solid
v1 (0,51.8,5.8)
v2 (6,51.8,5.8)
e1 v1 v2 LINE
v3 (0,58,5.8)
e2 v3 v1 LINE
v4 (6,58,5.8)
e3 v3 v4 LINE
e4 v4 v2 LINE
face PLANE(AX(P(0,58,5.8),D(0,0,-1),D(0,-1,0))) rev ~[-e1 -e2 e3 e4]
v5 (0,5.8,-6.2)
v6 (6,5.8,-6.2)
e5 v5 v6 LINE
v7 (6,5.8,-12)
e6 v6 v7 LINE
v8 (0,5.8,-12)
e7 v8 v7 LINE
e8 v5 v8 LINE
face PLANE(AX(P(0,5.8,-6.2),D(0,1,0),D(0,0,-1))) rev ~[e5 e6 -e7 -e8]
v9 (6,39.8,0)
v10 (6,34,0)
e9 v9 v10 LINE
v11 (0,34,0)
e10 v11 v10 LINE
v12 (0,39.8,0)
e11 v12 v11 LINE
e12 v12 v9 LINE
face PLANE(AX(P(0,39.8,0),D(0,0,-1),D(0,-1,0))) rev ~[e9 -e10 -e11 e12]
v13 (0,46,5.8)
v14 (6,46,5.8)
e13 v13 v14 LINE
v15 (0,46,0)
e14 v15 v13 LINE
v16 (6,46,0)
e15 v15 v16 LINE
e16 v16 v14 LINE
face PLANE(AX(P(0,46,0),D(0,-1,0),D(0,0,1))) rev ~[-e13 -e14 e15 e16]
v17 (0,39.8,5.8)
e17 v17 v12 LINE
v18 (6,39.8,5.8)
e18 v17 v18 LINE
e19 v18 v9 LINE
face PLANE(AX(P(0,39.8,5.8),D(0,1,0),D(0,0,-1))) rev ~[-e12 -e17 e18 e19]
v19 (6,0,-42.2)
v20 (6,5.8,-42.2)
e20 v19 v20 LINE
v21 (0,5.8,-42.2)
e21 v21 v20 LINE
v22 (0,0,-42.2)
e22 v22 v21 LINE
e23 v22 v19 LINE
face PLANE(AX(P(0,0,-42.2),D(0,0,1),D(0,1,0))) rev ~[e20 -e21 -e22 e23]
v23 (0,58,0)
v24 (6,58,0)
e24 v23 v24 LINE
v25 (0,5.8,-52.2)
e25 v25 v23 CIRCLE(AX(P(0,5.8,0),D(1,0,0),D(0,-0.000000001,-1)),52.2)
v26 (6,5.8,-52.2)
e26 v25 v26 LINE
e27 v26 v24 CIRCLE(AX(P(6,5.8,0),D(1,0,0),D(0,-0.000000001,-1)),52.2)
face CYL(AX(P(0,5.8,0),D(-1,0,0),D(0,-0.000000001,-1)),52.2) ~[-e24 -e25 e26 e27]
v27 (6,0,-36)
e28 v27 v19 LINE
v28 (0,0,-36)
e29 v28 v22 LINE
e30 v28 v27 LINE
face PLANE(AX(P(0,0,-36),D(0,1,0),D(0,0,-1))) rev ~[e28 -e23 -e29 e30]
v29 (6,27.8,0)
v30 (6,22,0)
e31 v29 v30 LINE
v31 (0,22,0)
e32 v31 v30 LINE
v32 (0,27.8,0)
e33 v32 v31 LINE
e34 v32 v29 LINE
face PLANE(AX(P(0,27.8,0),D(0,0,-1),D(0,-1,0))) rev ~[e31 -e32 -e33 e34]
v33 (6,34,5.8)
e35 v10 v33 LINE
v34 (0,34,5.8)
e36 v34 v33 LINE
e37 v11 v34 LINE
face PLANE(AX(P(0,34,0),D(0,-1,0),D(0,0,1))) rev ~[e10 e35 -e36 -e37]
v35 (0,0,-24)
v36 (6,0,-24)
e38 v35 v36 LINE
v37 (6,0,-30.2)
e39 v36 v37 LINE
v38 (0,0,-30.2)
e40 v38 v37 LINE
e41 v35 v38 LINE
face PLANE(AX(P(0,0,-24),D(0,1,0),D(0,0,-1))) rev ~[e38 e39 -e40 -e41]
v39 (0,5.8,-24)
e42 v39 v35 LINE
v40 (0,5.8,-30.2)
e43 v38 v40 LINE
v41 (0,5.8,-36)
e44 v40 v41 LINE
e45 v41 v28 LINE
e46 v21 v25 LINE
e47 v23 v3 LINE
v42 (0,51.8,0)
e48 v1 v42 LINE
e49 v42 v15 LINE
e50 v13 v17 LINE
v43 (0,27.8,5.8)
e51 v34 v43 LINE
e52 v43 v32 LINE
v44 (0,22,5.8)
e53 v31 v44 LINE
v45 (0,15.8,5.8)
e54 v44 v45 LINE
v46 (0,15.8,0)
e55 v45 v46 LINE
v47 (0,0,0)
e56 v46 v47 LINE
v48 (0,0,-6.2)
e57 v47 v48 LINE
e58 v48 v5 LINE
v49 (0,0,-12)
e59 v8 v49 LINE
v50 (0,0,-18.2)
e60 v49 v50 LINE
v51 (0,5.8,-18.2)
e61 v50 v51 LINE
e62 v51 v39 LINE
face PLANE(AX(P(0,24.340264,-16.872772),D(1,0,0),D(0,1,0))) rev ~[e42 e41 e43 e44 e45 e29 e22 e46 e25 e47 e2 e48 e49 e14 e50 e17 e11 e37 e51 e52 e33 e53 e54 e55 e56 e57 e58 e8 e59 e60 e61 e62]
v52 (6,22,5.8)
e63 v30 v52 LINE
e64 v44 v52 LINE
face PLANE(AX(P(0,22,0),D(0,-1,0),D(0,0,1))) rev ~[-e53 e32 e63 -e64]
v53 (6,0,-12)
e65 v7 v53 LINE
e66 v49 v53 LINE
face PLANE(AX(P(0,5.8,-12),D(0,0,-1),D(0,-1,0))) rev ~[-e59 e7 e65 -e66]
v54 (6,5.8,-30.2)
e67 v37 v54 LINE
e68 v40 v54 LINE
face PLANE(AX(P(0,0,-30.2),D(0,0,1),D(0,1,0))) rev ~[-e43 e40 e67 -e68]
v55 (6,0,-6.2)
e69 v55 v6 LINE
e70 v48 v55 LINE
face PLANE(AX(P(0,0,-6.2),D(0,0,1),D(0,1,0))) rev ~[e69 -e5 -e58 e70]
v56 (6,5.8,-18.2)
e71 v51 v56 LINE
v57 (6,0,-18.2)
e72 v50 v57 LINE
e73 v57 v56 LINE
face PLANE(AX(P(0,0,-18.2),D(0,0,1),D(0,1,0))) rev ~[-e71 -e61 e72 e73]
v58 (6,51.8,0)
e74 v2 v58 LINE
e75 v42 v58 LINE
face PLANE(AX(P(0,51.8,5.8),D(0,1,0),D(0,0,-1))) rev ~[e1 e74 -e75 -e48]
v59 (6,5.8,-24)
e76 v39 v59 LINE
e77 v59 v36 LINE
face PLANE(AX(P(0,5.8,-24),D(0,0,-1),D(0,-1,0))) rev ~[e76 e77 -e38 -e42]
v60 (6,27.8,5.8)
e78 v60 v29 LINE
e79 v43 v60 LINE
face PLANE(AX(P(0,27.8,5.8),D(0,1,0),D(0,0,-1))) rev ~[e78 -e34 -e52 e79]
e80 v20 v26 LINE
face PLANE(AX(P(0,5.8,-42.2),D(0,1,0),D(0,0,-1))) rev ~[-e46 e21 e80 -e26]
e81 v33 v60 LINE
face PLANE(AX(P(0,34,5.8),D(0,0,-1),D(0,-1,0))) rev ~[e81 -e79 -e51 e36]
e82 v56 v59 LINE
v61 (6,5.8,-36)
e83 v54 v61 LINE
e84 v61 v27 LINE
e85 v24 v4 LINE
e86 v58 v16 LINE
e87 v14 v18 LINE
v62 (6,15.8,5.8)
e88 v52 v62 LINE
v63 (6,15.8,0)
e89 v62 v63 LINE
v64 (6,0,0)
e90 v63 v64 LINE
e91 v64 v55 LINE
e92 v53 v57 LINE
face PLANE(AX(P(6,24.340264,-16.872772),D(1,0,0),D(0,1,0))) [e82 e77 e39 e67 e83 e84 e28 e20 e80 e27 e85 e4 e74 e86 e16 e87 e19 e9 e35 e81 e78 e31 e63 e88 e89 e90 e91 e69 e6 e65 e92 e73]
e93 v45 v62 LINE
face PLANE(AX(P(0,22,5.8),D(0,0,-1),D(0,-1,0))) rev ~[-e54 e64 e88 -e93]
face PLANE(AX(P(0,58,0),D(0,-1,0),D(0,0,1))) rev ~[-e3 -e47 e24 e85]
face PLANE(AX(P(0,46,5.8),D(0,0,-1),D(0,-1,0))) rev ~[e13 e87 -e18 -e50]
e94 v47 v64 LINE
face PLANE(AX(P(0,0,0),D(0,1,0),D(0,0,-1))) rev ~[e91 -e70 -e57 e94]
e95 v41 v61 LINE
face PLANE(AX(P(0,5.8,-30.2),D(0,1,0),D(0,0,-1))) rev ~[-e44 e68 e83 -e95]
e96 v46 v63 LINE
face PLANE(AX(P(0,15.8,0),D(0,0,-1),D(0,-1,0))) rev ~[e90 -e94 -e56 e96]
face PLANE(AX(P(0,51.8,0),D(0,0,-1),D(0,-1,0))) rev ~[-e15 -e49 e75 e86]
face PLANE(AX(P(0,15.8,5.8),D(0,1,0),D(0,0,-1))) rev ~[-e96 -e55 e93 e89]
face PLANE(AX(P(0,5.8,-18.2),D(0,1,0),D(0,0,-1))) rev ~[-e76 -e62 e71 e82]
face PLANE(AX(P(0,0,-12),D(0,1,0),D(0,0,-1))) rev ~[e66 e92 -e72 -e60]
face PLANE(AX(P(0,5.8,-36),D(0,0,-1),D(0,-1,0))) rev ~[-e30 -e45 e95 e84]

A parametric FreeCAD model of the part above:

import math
import FreeCAD as App
import Part
import Sketcher

doc = App.newDocument("Part")
body = doc.addObject("PartDesign::Body", "Body")

# Sketch on YZ plane
sketch1 = doc.addObject("Sketcher::SketchObject", "Sketch")
body.addObject(sketch1)
sketch1.AttachmentSupport = (doc.YZ_Plane, [""])
sketch1.MapMode = "FlatFace"
sketch1.addGeometry(Part.LineSegment(App.Vector(6, -42, 0), App.Vector(6, -52, 0)), False)
sketch1.addGeometry(Part.ArcOfCircle(Part.Circle(App.Vector(6, 0, 0), App.Vector(0, 0, 1), 52), math.radians(-90), math.radians(0)), False)
sketch1.addGeometry(Part.LineSegment(App.Vector(58, 0, 0), App.Vector(58, 6, 0)), False)
sketch1.addGeometry(Part.LineSegment(App.Vector(58, 6, 0), App.Vector(52, 6, 0)), False)
sketch1.addGeometry(Part.LineSegment(App.Vector(52, 6, 0), App.Vector(52, 0, 0)), False)
sketch1.addGeometry(Part.LineSegment(App.Vector(52, 0, 0), App.Vector(46, 0, 0)), False)
sketch1.addGeometry(Part.LineSegment(App.Vector(46, 0, 0), App.Vector(46, 6, 0)), False)
sketch1.addGeometry(Part.LineSegment(App.Vector(46, 6, 0), App.Vector(40, 6, 0)), False)
sketch1.addGeometry(Part.LineSegment(App.Vector(40, 6, 0), App.Vector(40, 0, 0)), False)
sketch1.addGeometry(Part.LineSegment(App.Vector(40, 0, 0), App.Vector(34, 0, 0)), False)
sketch1.addGeometry(Part.LineSegment(App.Vector(34, 0, 0), App.Vector(34, 6, 0)), False)
sketch1.addGeometry(Part.LineSegment(App.Vector(34, 6, 0), App.Vector(28, 6, 0)), False)
sketch1.addGeometry(Part.LineSegment(App.Vector(28, 6, 0), App.Vector(28, 0, 0)), False)
sketch1.addGeometry(Part.LineSegment(App.Vector(28, 0, 0), App.Vector(22, 0, 0)), False)
sketch1.addGeometry(Part.LineSegment(App.Vector(22, 0, 0), App.Vector(22, 6, 0)), False)
sketch1.addGeometry(Part.LineSegment(App.Vector(22, 6, 0), App.Vector(16, 6, 0)), False)
sketch1.addGeometry(Part.LineSegment(App.Vector(16, 6, 0), App.Vector(16, 0, 0)), False)
sketch1.addGeometry(Part.LineSegment(App.Vector(16, 0, 0), App.Vector(0, 0, 0)), False)
sketch1.addGeometry(Part.LineSegment(App.Vector(0, 0, 0), App.Vector(0, -6, 0)), False)
sketch1.addGeometry(Part.LineSegment(App.Vector(0, -6, 0), App.Vector(6, -6, 0)), False)
sketch1.addGeometry(Part.LineSegment(App.Vector(6, -6, 0), App.Vector(6, -12, 0)), False)
sketch1.addGeometry(Part.LineSegment(App.Vector(6, -12, 0), App.Vector(0, -12, 0)), False)
sketch1.addGeometry(Part.LineSegment(App.Vector(0, -12, 0), App.Vector(0, -18, 0)), False)
sketch1.addGeometry(Part.LineSegment(App.Vector(0, -18, 0), App.Vector(6, -18, 0)), False)
sketch1.addGeometry(Part.LineSegment(App.Vector(6, -18, 0), App.Vector(6, -24, 0)), False)
sketch1.addGeometry(Part.LineSegment(App.Vector(6, -24, 0), App.Vector(0, -24, 0)), False)
sketch1.addGeometry(Part.LineSegment(App.Vector(0, -24, 0), App.Vector(0, -30, 0)), False)
sketch1.addGeometry(Part.LineSegment(App.Vector(0, -30, 0), App.Vector(6, -30, 0)), False)
sketch1.addGeometry(Part.LineSegment(App.Vector(6, -30, 0), App.Vector(6, -36, 0)), False)
sketch1.addGeometry(Part.LineSegment(App.Vector(6, -36, 0), App.Vector(0, -36, 0)), False)
sketch1.addGeometry(Part.LineSegment(App.Vector(0, -36, 0), App.Vector(0, -42, 0)), False)
sketch1.addGeometry(Part.LineSegment(App.Vector(0, -42, 0), App.Vector(6, -42, 0)), False)
sketch1.addConstraint(Sketcher.Constraint("Coincident", 0, 2, 1, 1))
sketch1.addConstraint(Sketcher.Constraint("Tangent", 1, 2, 2, 1))
sketch1.addConstraint(Sketcher.Constraint("Coincident", 2, 2, 3, 1))
sketch1.addConstraint(Sketcher.Constraint("Coincident", 3, 2, 4, 1))
sketch1.addConstraint(Sketcher.Constraint("Coincident", 4, 2, 5, 1))
sketch1.addConstraint(Sketcher.Constraint("Coincident", 5, 2, 6, 1))
sketch1.addConstraint(Sketcher.Constraint("Coincident", 6, 2, 7, 1))
sketch1.addConstraint(Sketcher.Constraint("Coincident", 7, 2, 8, 1))
sketch1.addConstraint(Sketcher.Constraint("Coincident", 8, 2, 9, 1))
sketch1.addConstraint(Sketcher.Constraint("Coincident", 9, 2, 10, 1))
sketch1.addConstraint(Sketcher.Constraint("Coincident", 10, 2, 11, 1))
sketch1.addConstraint(Sketcher.Constraint("Coincident", 11, 2, 12, 1))
sketch1.addConstraint(Sketcher.Constraint("Coincident", 12, 2, 13, 1))
sketch1.addConstraint(Sketcher.Constraint("Coincident", 13, 2, 14, 1))
sketch1.addConstraint(Sketcher.Constraint("Coincident", 14, 2, 15, 1))
sketch1.addConstraint(Sketcher.Constraint("Coincident", 15, 2, 16, 1))
sketch1.addConstraint(Sketcher.Constraint("Coincident", 16, 2, 17, 1))
sketch1.addConstraint(Sketcher.Constraint("Coincident", 17, 2, 18, 1))
sketch1.addConstraint(Sketcher.Constraint("Coincident", 18, 2, 19, 1))
sketch1.addConstraint(Sketcher.Constraint("Coincident", 19, 2, 20, 1))
sketch1.addConstraint(Sketcher.Constraint("Coincident", 20, 2, 21, 1))
sketch1.addConstraint(Sketcher.Constraint("Coincident", 21, 2, 22, 1))
sketch1.addConstraint(Sketcher.Constraint("Coincident", 22, 2, 23, 1))
sketch1.addConstraint(Sketcher.Constraint("Coincident", 23, 2, 24, 1))
sketch1.addConstraint(Sketcher.Constraint("Coincident", 24, 2, 25, 1))
sketch1.addConstraint(Sketcher.Constraint("Coincident", 25, 2, 26, 1))
sketch1.addConstraint(Sketcher.Constraint("Coincident", 26, 2, 27, 1))
sketch1.addConstraint(Sketcher.Constraint("Coincident", 27, 2, 28, 1))
sketch1.addConstraint(Sketcher.Constraint("Coincident", 28, 2, 29, 1))
sketch1.addConstraint(Sketcher.Constraint("Coincident", 29, 2, 30, 1))
sketch1.addConstraint(Sketcher.Constraint("Coincident", 30, 2, 31, 1))
sketch1.addConstraint(Sketcher.Constraint("Coincident", 31, 2, 0, 1))
sketch1.addConstraint(Sketcher.Constraint("Vertical", 0))
sketch1.addConstraint(Sketcher.Constraint("Vertical", 2))
sketch1.addConstraint(Sketcher.Constraint("Horizontal", 3))
sketch1.addConstraint(Sketcher.Constraint("Vertical", 4))
sketch1.addConstraint(Sketcher.Constraint("Horizontal", 5))
sketch1.addConstraint(Sketcher.Constraint("Vertical", 6))
sketch1.addConstraint(Sketcher.Constraint("Horizontal", 7))
sketch1.addConstraint(Sketcher.Constraint("Vertical", 8))
sketch1.addConstraint(Sketcher.Constraint("Horizontal", 9))
sketch1.addConstraint(Sketcher.Constraint("Vertical", 10))
sketch1.addConstraint(Sketcher.Constraint("Horizontal", 11))
sketch1.addConstraint(Sketcher.Constraint("Vertical", 12))
sketch1.addConstraint(Sketcher.Constraint("Horizontal", 13))
sketch1.addConstraint(Sketcher.Constraint("Vertical", 14))
sketch1.addConstraint(Sketcher.Constraint("Horizontal", 15))
sketch1.addConstraint(Sketcher.Constraint("Vertical", 16))
sketch1.addConstraint(Sketcher.Constraint("Horizontal", 17))
sketch1.addConstraint(Sketcher.Constraint("Vertical", 18))
sketch1.addConstraint(Sketcher.Constraint("Horizontal", 19))
sketch1.addConstraint(Sketcher.Constraint("Vertical", 20))
sketch1.addConstraint(Sketcher.Constraint("Horizontal", 21))
sketch1.addConstraint(Sketcher.Constraint("Vertical", 22))
sketch1.addConstraint(Sketcher.Constraint("Horizontal", 23))
sketch1.addConstraint(Sketcher.Constraint("Vertical", 24))
sketch1.addConstraint(Sketcher.Constraint("Horizontal", 25))
sketch1.addConstraint(Sketcher.Constraint("Vertical", 26))
sketch1.addConstraint(Sketcher.Constraint("Horizontal", 27))
sketch1.addConstraint(Sketcher.Constraint("Vertical", 28))
sketch1.addConstraint(Sketcher.Constraint("Horizontal", 29))
sketch1.addConstraint(Sketcher.Constraint("Vertical", 30))
sketch1.addConstraint(Sketcher.Constraint("Horizontal", 31))
sketch1.addConstraint(Sketcher.Constraint("Coincident", 17, 2, -1, 1))
sketch1.addConstraint(Sketcher.Constraint("PointOnObject", 1, 3, -1))
sketch1.addConstraint(Sketcher.Constraint("PointOnObject", 4, 2, -1))
sketch1.addConstraint(Sketcher.Constraint("PointOnObject", 8, 2, -1))
sketch1.addConstraint(Sketcher.Constraint("PointOnObject", 12, 2, -1))
sketch1.addConstraint(Sketcher.Constraint("PointOnObject", 21, 2, -2))
sketch1.addConstraint(Sketcher.Constraint("PointOnObject", 25, 2, -2))
sketch1.addConstraint(Sketcher.Constraint("PointOnObject", 29, 2, -2))
sketch1.addConstraint(Sketcher.Constraint("Horizontal", 3, 2, 6, 2))
sketch1.addConstraint(Sketcher.Constraint("Horizontal", 7, 2, 10, 2))
sketch1.addConstraint(Sketcher.Constraint("Horizontal", 11, 2, 14, 2))
sketch1.addConstraint(Sketcher.Constraint("Vertical", 1, 3, 0, 2))
sketch1.addConstraint(Sketcher.Constraint("Vertical", 0, 2, 19, 2))
sketch1.addConstraint(Sketcher.Constraint("Vertical", 20, 2, 23, 2))
sketch1.addConstraint(Sketcher.Constraint("Vertical", 24, 2, 27, 2))
sketch1.addConstraint(Sketcher.Constraint("Equal", 3, 7))
sketch1.addConstraint(Sketcher.Constraint("Equal", 5, 9))
sketch1.addConstraint(Sketcher.Constraint("Equal", 7, 11))
sketch1.addConstraint(Sketcher.Constraint("Equal", 9, 13))
sketch1.addConstraint(Sketcher.Constraint("Equal", 11, 15))
sketch1.addConstraint(Sketcher.Constraint("Equal", 13, 19))
sketch1.addConstraint(Sketcher.Constraint("Equal", 31, 2))
sketch1.addConstraint(Sketcher.Constraint("Equal", 15, 18))
sketch1.addConstraint(Sketcher.Constraint("Equal", 16, 20))
sketch1.addConstraint(Sketcher.Constraint("Equal", 18, 22))
sketch1.addConstraint(Sketcher.Constraint("Equal", 20, 24))
sketch1.addConstraint(Sketcher.Constraint("Equal", 22, 26))
sketch1.addConstraint(Sketcher.Constraint("Equal", 24, 28))
sketch1.addConstraint(Sketcher.Constraint("Equal", 26, 30))
sketch1.addConstraint(Sketcher.Constraint("Radius", 1, 52.2))
sketch1.addConstraint(Sketcher.Constraint("DistanceY", 0, 2, 0, 1, 10.0))
sketch1.addConstraint(Sketcher.Constraint("DistanceX", 3, 2, 3, 1, 6.2))
pad1 = doc.addObject("PartDesign::Pad", "Pad")
body.addObject(pad1)
pad1.Profile = sketch1
pad1.Length = 6

doc.recompute()
